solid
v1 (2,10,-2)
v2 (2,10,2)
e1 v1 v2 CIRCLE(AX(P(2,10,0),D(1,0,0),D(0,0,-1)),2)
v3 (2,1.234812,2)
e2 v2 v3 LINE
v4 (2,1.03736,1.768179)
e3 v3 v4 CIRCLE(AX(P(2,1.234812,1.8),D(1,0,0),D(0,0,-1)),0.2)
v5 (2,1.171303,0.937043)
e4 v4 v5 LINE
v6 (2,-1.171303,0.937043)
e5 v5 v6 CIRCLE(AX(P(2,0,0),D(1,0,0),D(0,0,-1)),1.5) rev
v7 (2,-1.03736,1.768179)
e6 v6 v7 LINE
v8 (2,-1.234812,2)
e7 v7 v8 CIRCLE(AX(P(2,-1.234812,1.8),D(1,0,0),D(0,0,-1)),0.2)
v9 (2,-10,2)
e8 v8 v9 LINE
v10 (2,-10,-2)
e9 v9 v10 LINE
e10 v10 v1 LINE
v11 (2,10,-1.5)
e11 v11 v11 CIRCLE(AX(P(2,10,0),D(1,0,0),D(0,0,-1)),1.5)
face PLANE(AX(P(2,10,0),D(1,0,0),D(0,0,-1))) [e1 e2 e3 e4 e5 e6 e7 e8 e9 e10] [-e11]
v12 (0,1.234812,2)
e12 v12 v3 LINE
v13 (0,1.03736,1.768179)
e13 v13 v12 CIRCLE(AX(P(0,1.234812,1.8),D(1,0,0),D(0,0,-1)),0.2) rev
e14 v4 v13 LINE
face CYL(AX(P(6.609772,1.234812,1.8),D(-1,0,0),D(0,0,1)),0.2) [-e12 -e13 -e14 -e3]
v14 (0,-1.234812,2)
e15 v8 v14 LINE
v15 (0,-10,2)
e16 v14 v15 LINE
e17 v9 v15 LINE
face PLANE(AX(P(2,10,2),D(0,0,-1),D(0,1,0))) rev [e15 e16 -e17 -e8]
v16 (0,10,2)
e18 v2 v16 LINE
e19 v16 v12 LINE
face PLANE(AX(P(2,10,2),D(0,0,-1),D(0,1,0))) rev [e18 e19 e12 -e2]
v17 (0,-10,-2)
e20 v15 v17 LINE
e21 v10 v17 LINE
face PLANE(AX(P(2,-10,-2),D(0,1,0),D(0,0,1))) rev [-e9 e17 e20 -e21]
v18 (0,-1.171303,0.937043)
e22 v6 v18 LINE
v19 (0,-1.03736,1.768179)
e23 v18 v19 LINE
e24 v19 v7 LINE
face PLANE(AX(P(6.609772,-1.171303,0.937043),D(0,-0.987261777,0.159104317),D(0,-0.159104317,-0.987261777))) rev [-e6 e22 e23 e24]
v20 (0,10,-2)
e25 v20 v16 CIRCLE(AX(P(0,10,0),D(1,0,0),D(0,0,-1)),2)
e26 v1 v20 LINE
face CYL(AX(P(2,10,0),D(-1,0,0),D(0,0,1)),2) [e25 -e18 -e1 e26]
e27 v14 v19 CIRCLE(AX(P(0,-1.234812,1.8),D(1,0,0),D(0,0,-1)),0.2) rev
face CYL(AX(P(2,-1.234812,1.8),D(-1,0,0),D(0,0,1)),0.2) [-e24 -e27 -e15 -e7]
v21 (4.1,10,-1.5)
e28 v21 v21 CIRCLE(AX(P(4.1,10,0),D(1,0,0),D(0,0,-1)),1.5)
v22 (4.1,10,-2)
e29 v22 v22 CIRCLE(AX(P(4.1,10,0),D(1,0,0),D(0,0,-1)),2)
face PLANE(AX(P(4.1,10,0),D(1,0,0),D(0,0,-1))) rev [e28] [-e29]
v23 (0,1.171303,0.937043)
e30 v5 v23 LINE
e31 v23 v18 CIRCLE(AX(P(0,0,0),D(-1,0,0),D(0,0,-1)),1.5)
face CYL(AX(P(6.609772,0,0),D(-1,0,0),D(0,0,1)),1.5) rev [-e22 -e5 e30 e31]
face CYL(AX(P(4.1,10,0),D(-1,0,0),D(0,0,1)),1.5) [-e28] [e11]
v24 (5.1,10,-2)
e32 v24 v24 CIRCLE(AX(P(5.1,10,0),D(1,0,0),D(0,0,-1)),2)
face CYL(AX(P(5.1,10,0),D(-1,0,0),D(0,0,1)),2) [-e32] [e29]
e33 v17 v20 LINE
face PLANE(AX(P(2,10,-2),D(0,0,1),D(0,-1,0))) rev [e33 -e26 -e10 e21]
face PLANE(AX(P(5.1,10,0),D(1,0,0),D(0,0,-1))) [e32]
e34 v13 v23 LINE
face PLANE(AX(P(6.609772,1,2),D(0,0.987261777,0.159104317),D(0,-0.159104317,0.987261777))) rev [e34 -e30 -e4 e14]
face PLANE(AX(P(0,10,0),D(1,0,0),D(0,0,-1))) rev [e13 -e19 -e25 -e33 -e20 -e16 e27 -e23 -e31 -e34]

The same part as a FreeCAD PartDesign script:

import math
import FreeCAD as App
import Part
import Sketcher

V = App.Vector


def edges_at(feature, points):
    """Names of the edges that pass closest to the given points."""
    edges = feature.Shape.Edges
    near = lambda p: min(range(len(edges)), key=lambda i: edges[i].distToShape(Part.Vertex(*p))[0])
    return sorted({f"Edge{near(p) + 1}" for p in points})

doc = App.newDocument("Part")
body = doc.addObject("PartDesign::Body", "Body")

sketch1 = body.newObject("Sketcher::SketchObject", "Sketch")
sketch1.AttachmentSupport = (doc.getObject("YZ_Plane"), [""])
sketch1.MapMode = "FlatFace"
sketch1.addGeometry(Part.LineSegment(V(-10, -2, 0), V(10, -2, 0)), False)
sketch1.addGeometry(Part.ArcOfCircle(Part.Circle(V(10, 0, 0), V(0, 0, 1), 2), math.radians(-90), math.radians(90)), False)
sketch1.addGeometry(Part.LineSegment(V(10, 2, 0), V(-10, 2, 0)), False)
sketch1.addGeometry(Part.LineSegment(V(-10, 2, 0), V(-10, -2, 0)), False)
sketch1.addConstraint(Sketcher.Constraint("Tangent", 0, 2, 1, 1))
sketch1.addConstraint(Sketcher.Constraint("Tangent", 1, 2, 2, 1))
sketch1.addConstraint(Sketcher.Constraint("Coincident", 2, 2, 3, 1))
sketch1.addConstraint(Sketcher.Constraint("Coincident", 3, 2, 0, 1))
sketch1.addConstraint(Sketcher.Constraint("Horizontal", 0))
sketch1.addConstraint(Sketcher.Constraint("Horizontal", 2))
sketch1.addConstraint(Sketcher.Constraint("Vertical", 3))
sketch1.addConstraint(Sketcher.Constraint("Symmetric", 0, 2, 2, 2, -1, 1))
sketch1.addConstraint(Sketcher.Constraint("Radius", 1, 2.0))
sketch1.addConstraint(Sketcher.Constraint("DistanceX", 0, 1, 0, 2, 20.0))
pad1 = body.newObject("PartDesign::Pad", "Pad")
pad1.Profile = sketch1
pad1.Length = 2

sketch2 = body.newObject("Sketcher::SketchObject", "Sketch001")
sketch2.AttachmentSupport = (doc.getObject("YZ_Plane"), [""])
sketch2.MapMode = "FlatFace"
sketch2.AttachmentOffset = App.Placement(V(0, 0, 2), App.Rotation())
sketch2.addGeometry(Part.Circle(V(10, 0, 0), V(0, 0, 1), 1.5), False)
sketch2.addConstraint(Sketcher.Constraint("PointOnObject", 0, 3, -1))
sketch2.addConstraint(Sketcher.Constraint("Diameter", 0, 3.0))
sketch2.addConstraint(Sketcher.Constraint("DistanceX", -1, 1, 0, 3, 10.0))
pad2 = body.newObject("PartDesign::Pad", "Pad001")
pad2.Profile = sketch2
pad2.Length = 2.1

sketch3 = body.newObject("Sketcher::SketchObject", "Sketch002")
sketch3.AttachmentSupport = (doc.getObject("YZ_Plane"), [""])
sketch3.MapMode = "FlatFace"
sketch3.AttachmentOffset = App.Placement(V(0, 0, 4.1), App.Rotation())
sketch3.addGeometry(Part.Circle(V(10, 0, 0), V(0, 0, 1), 2), False)
sketch3.addConstraint(Sketcher.Constraint("PointOnObject", 0, 3, -1))
sketch3.addConstraint(Sketcher.Constraint("Diameter", 0, 4.0))
sketch3.addConstraint(Sketcher.Constraint("DistanceX", -1, 1, 0, 3, 10.0))
pad3 = body.newObject("PartDesign::Pad", "Pad002")
pad3.Profile = sketch3
pad3.Length = 1

sketch4 = body.newObject("Sketcher::SketchObject", "Sketch003")
sketch4.AttachmentSupport = (doc.getObject("YZ_Plane"), [""])
sketch4.MapMode = "FlatFace"
sketch4.addGeometry(Part.LineSegment(V(1, 2, 0), V(1.2, 0.9, 0)), False)
sketch4.addGeometry(Part.ArcOfCircle(Part.Circle(V(0, 0, 0), V(0, 0, 1), 1.5), math.radians(141), math.radians(399)), False)
sketch4.addGeometry(Part.LineSegment(V(-1.2, 0.9, 0), V(-1, 2, 0)), False)
sketch4.addGeometry(Part.LineSegment(V(-1, 2, 0), V(1, 2, 0)), False)
sketch4.addConstraint(Sketcher.Constraint("Coincident", 0, 2, 1, 2))
sketch4.addConstraint(Sketcher.Constraint("Coincident", 1, 1, 2, 1))
sketch4.addConstraint(Sketcher.Constraint("Coincident", 2, 2, 3, 1))
sketch4.addConstraint(Sketcher.Constraint("Coincident", 3, 2, 0, 1))
sketch4.addConstraint(Sketcher.Constraint("Horizontal", 3))
sketch4.addConstraint(Sketcher.Constraint("Coincident", 1, 3, -1, 1))
sketch4.addConstraint(Sketcher.Constraint("Horizontal", 0, 2, 1, 1))
sketch4.addConstraint(Sketcher.Constraint("Equal", 0, 2))
sketch4.addConstraint(Sketcher.Constraint("Radius", 1, 1.5))
sketch4.addConstraint(Sketcher.Constraint("DistanceX", 3, 1, 3, 2, 2.0))
sketch4.addConstraint(Sketcher.Constraint("DistanceY", -1, 1, 2, 2, 2.0))
sketch4.addConstraint(Sketcher.Constraint("Distance", 0, 1.076672))
pocket1 = body.newObject("PartDesign::Pocket", "Pocket")
pocket1.Profile = sketch4
pocket1.Length = 2
pocket1.Reversed = True
doc.recompute()

fillet = body.newObject("PartDesign::Fillet", "Fillet")
fillet.Base = (pocket1, edges_at(pocket1, [(1, -1, 2), (1, 1, 2)]))
fillet.Radius = 0.2

doc.recompute()
